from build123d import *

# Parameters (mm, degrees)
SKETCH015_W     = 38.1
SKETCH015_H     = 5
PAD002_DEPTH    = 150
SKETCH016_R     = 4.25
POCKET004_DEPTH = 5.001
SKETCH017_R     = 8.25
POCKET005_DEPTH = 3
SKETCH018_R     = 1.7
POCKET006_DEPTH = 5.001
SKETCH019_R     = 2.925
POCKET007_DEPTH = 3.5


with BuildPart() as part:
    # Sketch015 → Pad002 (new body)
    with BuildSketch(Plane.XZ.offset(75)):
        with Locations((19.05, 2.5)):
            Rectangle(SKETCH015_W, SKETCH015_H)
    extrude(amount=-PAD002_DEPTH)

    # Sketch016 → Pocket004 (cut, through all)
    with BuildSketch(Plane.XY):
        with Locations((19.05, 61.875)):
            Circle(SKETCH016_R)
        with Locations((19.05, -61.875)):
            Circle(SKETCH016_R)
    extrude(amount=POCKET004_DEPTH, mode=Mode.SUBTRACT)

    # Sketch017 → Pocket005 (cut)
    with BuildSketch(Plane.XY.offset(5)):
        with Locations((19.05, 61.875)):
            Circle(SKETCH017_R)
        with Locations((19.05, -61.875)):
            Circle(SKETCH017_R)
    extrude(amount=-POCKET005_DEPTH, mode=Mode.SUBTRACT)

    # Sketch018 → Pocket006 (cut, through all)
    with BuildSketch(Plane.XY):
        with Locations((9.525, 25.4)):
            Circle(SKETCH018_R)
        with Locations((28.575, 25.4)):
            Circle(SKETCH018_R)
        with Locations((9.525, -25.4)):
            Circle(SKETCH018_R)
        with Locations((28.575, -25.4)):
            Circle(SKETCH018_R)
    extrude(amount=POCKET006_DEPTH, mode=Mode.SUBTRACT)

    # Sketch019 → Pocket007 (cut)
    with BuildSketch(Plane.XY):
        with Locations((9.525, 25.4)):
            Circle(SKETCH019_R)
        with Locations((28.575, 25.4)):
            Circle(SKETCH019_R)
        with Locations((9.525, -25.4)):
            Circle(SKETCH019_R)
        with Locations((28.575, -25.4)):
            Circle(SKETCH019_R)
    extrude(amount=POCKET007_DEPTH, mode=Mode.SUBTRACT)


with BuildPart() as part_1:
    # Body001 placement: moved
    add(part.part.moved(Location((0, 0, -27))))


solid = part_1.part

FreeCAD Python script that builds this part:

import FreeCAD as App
import Part
import Sketcher
from FreeCAD import Vector

doc = App.newDocument("Part")
body = doc.addObject("PartDesign::Body", "Body")

# Sketch on XZ plane
sketch1 = body.newObject("Sketcher::SketchObject", "Sketch")
sketch1.AttachmentSupport = (doc.getObject("XZ_Plane"), [""])
sketch1.MapMode = "FlatFace"
sketch1.AttachmentOffset = App.Placement(Vector(0, 0, 75), App.Rotation())
sketch1.addGeometry(Part.LineSegment(Vector(0, 5, 0), Vector(0, 0, 0)), False)
sketch1.addGeometry(Part.LineSegment(Vector(0, 0, 0), Vector(38, 0, 0)), False)
sketch1.addGeometry(Part.LineSegment(Vector(38, 0, 0), Vector(38, 5, 0)), False)
sketch1.addGeometry(Part.LineSegment(Vector(38, 5, 0), Vector(0, 5, 0)), False)
sketch1.addConstraint(Sketcher.Constraint("Coincident", 0, 2, 1, 1))
sketch1.addConstraint(Sketcher.Constraint("Coincident", 1, 2, 2, 1))
sketch1.addConstraint(Sketcher.Constraint("Coincident", 2, 2, 3, 1))
sketch1.addConstraint(Sketcher.Constraint("Coincident", 3, 2, 0, 1))
sketch1.addConstraint(Sketcher.Constraint("Vertical", 0))
sketch1.addConstraint(Sketcher.Constraint("Horizontal", 1))
sketch1.addConstraint(Sketcher.Constraint("Vertical", 2))
sketch1.addConstraint(Sketcher.Constraint("Horizontal", 3))
sketch1.addConstraint(Sketcher.Constraint("Coincident", 0, 2, -1, 1))
sketch1.addConstraint(Sketcher.Constraint("DistanceY", 0, 2, 0, 1, 5.0))
sketch1.addConstraint(Sketcher.Constraint("DistanceX", 1, 1, 1, 2, 38.1))
pad1 = body.newObject("PartDesign::Pad", "Pad")
pad1.Profile = sketch1
pad1.Length = 150
pad1.Reversed = True

# Sketch on XY plane
sketch2 = body.newObject("Sketcher::SketchObject", "Sketch001")
sketch2.AttachmentSupport = (doc.getObject("XY_Plane"), [""])
sketch2.MapMode = "FlatFace"
sketch2.addGeometry(Part.Circle(Vector(19.1, 61.9, 0), Vector(0, 0, 1), 4.2), False)
sketch2.addGeometry(Part.Circle(Vector(19.1, -61.9, 0), Vector(0, 0, 1), 4.2), False)
sketch2.addConstraint(Sketcher.Constraint("Equal", 0, 1))
sketch2.addConstraint(Sketcher.Constraint("Symmetric", 0, 3, 1, 3, -1))
sketch2.addConstraint(Sketcher.Constraint("Diameter", 0, 8.5))
sketch2.addConstraint(Sketcher.Constraint("DistanceX", -1, 1, 0, 3, 19.05))
sketch2.addConstraint(Sketcher.Constraint("DistanceY", 1, 3, 0, 3, 123.75))
pocket1 = body.newObject("PartDesign::Pocket", "Pocket")
pocket1.Profile = sketch2
pocket1.Type = "ThroughAll"
pocket1.Reversed = True

# Sketch on XY plane
sketch3 = body.newObject("Sketcher::SketchObject", "Sketch002")
sketch3.AttachmentSupport = (doc.getObject("XY_Plane"), [""])
sketch3.MapMode = "FlatFace"
sketch3.AttachmentOffset = App.Placement(Vector(0, 0, 5), App.Rotation())
sketch3.addGeometry(Part.Circle(Vector(19, 62, 0), Vector(0, 0, 1), 8), False)
sketch3.addGeometry(Part.Circle(Vector(19, -62, 0), Vector(0, 0, 1), 8), False)
sketch3.addConstraint(Sketcher.Constraint("Equal", 0, 1))
sketch3.addConstraint(Sketcher.Constraint("Symmetric", 0, 3, 1, 3, -1))
sketch3.addConstraint(Sketcher.Constraint("Diameter", 0, 16.5))
sketch3.addConstraint(Sketcher.Constraint("DistanceX", -1, 1, 0, 3, 19.05))
sketch3.addConstraint(Sketcher.Constraint("DistanceY", 1, 3, 0, 3, 123.75))
pocket2 = body.newObject("PartDesign::Pocket", "Pocket001")
pocket2.Profile = sketch3
pocket2.Length = 3

# Sketch on XY plane
sketch4 = body.newObject("Sketcher::SketchObject", "Sketch003")
sketch4.AttachmentSupport = (doc.getObject("XY_Plane"), [""])
sketch4.MapMode = "FlatFace"
sketch4.addGeometry(Part.Circle(Vector(9.5, 25.4, 0), Vector(0, 0, 1), 1.7), False)
sketch4.addGeometry(Part.Circle(Vector(28.6, 25.4, 0), Vector(0, 0, 1), 1.7), False)
sketch4.addGeometry(Part.Circle(Vector(9.5, -25.4, 0), Vector(0, 0, 1), 1.7), False)
sketch4.addGeometry(Part.Circle(Vector(28.6, -25.4, 0), Vector(0, 0, 1), 1.7), False)
sketch4.addConstraint(Sketcher.Constraint("Equal", 0, 1))
sketch4.addConstraint(Sketcher.Constraint("Equal", 1, 2))
sketch4.addConstraint(Sketcher.Constraint("Equal", 2, 3))
sketch4.addConstraint(Sketcher.Constraint("Symmetric", 0, 3, 2, 3, -1))
sketch4.addConstraint(Sketcher.Constraint("Symmetric", 1, 3, 3, 3, -1))
sketch4.addConstraint(Sketcher.Constraint("Horizontal", 0, 3, 1, 3))
sketch4.addConstraint(Sketcher.Constraint("Diameter", 0, 3.4))
sketch4.addConstraint(Sketcher.Constraint("DistanceY", -1, 1, 0, 3, 25.4))
sketch4.addConstraint(Sketcher.Constraint("DistanceX", 0, 3, 1, 3, 19.05))
sketch4.addConstraint(Sketcher.Constraint("DistanceX", -1, 1, 0, 3, 9.525))
pocket3 = body.newObject("PartDesign::Pocket", "Pocket002")
pocket3.Profile = sketch4
pocket3.Type = "ThroughAll"
pocket3.Reversed = True

# Sketch on XY plane
sketch5 = body.newObject("Sketcher::SketchObject", "Sketch004")
sketch5.AttachmentSupport = (doc.getObject("XY_Plane"), [""])
sketch5.MapMode = "FlatFace"
sketch5.addGeometry(Part.Circle(Vector(9.5, 25.4, 0), Vector(0, 0, 1), 2.9), False)
sketch5.addGeometry(Part.Circle(Vector(28.6, 25.4, 0), Vector(0, 0, 1), 2.9), False)
sketch5.addGeometry(Part.Circle(Vector(9.5, -25.4, 0), Vector(0, 0, 1), 2.9), False)
sketch5.addGeometry(Part.Circle(Vector(28.6, -25.4, 0), Vector(0, 0, 1), 2.9), False)
sketch5.addConstraint(Sketcher.Constraint("Equal", 0, 1))
sketch5.addConstraint(Sketcher.Constraint("Equal", 1, 2))
sketch5.addConstraint(Sketcher.Constraint("Equal", 2, 3))
sketch5.addConstraint(Sketcher.Constraint("Symmetric", 0, 3, 2, 3, -1))
sketch5.addConstraint(Sketcher.Constraint("Symmetric", 1, 3, 3, 3, -1))
sketch5.addConstraint(Sketcher.Constraint("Horizontal", 0, 3, 1, 3))
sketch5.addConstraint(Sketcher.Constraint("Diameter", 0, 5.85))
sketch5.addConstraint(Sketcher.Constraint("DistanceY", -1, 1, 0, 3, 25.4))
sketch5.addConstraint(Sketcher.Constraint("DistanceX", 0, 3, 1, 3, 19.05))
sketch5.addConstraint(Sketcher.Constraint("DistanceX", -1, 1, 0, 3, 9.525))
pocket4 = body.newObject("PartDesign::Pocket", "Pocket003")
pocket4.Profile = sketch5
pocket4.Length = 3.5
pocket4.Reversed = True
body2 = doc.addObject("PartDesign::Body", "Body001")
doc.recompute()

body.Placement = App.Placement(Vector(0, 0, -27), App.Rotation(Vector(0, 0, 1), 0))
boolean = body2.newObject("PartDesign::Boolean", "Boolean")
boolean.Type = "Fuse"
boolean.addObjects([body])

doc.recompute()
